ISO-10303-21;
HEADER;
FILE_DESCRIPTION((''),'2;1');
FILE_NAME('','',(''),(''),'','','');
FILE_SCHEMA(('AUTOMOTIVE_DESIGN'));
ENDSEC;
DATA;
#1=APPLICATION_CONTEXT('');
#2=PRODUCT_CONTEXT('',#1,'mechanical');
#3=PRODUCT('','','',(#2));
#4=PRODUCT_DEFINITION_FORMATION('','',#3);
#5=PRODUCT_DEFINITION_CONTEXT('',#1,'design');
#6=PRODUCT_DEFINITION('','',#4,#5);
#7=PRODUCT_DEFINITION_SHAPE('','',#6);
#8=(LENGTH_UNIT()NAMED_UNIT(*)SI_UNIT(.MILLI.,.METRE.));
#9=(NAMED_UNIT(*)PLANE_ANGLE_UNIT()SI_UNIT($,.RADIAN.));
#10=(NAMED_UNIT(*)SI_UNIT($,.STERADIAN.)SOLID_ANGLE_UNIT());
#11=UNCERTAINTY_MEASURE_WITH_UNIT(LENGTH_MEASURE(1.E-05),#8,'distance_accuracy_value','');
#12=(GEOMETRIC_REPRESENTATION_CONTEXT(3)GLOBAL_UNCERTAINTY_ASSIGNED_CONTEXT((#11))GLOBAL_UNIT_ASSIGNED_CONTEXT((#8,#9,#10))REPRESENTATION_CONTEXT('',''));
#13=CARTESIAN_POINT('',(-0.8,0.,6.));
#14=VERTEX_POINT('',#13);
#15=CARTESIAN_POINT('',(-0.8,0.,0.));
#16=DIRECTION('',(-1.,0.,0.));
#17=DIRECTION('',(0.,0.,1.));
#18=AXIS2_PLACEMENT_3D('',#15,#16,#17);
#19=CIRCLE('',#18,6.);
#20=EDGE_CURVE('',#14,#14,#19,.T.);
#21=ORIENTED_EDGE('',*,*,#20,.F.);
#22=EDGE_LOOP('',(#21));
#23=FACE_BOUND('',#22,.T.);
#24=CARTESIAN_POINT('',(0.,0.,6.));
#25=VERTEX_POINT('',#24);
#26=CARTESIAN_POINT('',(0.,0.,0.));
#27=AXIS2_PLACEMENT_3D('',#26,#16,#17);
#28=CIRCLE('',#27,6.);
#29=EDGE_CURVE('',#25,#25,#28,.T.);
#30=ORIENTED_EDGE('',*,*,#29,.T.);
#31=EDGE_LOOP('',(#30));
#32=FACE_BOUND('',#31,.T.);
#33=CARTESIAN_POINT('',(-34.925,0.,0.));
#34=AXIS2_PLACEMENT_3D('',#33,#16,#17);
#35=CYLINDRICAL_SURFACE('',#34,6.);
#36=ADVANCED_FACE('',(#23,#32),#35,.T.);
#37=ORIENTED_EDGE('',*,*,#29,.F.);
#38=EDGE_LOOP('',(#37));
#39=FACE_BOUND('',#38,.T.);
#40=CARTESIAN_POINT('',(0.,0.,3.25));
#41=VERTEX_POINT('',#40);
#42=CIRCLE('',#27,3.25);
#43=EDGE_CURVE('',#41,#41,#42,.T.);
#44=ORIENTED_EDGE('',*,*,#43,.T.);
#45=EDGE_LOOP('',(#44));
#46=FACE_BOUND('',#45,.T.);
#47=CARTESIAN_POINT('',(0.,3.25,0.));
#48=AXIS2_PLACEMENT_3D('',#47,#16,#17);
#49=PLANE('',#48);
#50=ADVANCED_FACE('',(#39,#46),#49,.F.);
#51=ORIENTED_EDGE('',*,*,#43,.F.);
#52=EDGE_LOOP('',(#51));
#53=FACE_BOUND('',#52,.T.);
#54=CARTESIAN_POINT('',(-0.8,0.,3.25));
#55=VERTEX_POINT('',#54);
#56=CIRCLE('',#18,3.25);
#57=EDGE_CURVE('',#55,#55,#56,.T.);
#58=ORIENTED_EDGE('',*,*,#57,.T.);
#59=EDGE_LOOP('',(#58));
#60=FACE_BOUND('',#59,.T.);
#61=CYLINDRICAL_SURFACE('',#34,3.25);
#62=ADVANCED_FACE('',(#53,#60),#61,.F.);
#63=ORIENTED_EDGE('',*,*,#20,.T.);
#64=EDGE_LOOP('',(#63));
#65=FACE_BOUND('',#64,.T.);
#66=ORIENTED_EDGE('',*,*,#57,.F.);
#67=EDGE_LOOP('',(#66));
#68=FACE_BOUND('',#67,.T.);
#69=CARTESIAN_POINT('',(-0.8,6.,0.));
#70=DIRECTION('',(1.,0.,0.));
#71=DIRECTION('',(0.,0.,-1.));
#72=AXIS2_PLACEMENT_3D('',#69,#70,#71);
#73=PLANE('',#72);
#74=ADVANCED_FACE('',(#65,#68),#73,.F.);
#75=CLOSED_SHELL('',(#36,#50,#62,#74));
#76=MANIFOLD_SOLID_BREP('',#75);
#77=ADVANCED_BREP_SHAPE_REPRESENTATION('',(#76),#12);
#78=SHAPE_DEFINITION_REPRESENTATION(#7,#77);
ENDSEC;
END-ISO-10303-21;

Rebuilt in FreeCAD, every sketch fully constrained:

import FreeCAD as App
import Part
import Sketcher
Q = App.Units.Quantity


def add_polygon(sketch, points):
    """Adds a closed chain of lines whose ends are joined by coincident constraints."""
    first, n = sketch.GeometryCount, len(points)
    for a, b in zip(points, points[1:] + points[:1]):
        sketch.addGeometry(Part.LineSegment(App.Vector(*a, 0), App.Vector(*b, 0)), False)
    for i in range(n):
        sketch.addConstraint(Sketcher.Constraint("Coincident", first + i, 2, first + (i + 1) % n, 1))

doc = App.newDocument("Part")
body = doc.addObject("PartDesign::Body", "Body")

# Sketch on XY plane
sketch1 = body.newObject("Sketcher::SketchObject", "Sketch")
sketch1.AttachmentSupport = (doc.getObject("XY_Plane"), [""])
sketch1.MapMode = "FlatFace"
add_polygon(sketch1, [(-0.8, 6), (-0.8, 3.2), (0, 3.2), (0, 6)])  # lines 0-3
sketch1.addConstraint([
    Sketcher.Constraint("Vertical", 0),
    Sketcher.Constraint("Horizontal", 1),
    Sketcher.Constraint("Vertical", 2),
    Sketcher.Constraint("Horizontal", 3),
    Sketcher.Constraint("PointOnObject", 1, 2, -2),
    Sketcher.Constraint("DistanceX", 1, 1, 1, 2, Q("0.8 mm")),
    Sketcher.Constraint("DistanceY", -1, 1, 2, 2, Q("6 mm")),
    Sketcher.Constraint("DistanceY", 0, 2, 0, 1, Q("2.75 mm")),
])
revolution = body.newObject("PartDesign::Revolution", "Revolution")
revolution.Profile = sketch1
revolution.ReferenceAxis = (sketch1, ["H_Axis"])
revolution.Angle = 360

doc.recompute()
